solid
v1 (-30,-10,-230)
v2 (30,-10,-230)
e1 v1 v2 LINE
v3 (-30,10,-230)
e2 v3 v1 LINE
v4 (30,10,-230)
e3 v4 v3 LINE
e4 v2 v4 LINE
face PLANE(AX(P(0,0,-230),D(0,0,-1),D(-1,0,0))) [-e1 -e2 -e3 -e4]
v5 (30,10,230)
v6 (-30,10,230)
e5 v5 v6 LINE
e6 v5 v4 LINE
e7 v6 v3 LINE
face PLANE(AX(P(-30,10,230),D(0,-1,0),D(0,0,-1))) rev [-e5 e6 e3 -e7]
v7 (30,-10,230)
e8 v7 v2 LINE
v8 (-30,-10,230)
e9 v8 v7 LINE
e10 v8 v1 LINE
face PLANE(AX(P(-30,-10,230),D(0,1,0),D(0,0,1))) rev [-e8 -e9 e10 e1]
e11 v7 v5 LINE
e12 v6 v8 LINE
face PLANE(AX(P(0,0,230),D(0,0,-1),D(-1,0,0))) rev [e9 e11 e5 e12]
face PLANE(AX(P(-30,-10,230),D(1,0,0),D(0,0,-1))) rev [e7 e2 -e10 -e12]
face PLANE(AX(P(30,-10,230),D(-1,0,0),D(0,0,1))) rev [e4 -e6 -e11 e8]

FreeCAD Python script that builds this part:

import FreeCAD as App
import Part
import Sketcher
from FreeCAD import Vector


def add_polygon(sketch, points):
    """Adds a closed chain of lines whose ends are joined by coincident constraints."""
    first, n = sketch.GeometryCount, len(points)
    for a, b in zip(points, points[1:] + points[:1]):
        sketch.addGeometry(Part.LineSegment(App.Vector(*a, 0), App.Vector(*b, 0)), False)
    for i in range(n):
        sketch.addConstraint(Sketcher.Constraint("Coincident", first + i, 2, first + (i + 1) % n, 1))

doc = App.newDocument("Part")
body = doc.addObject("PartDesign::Body", "Body")

# Sketch on XY plane
sketch1 = body.newObject("Sketcher::SketchObject", "Sketch")
sketch1.AttachmentSupport = (doc.getObject("XY_Plane"), [""])
sketch1.MapMode = "FlatFace"
add_polygon(sketch1, [(-30, 10), (-30, -10), (30, -10), (30, 10)])  # lines 0-3
sketch1.addConstraint([
    Sketcher.Constraint("Vertical", 0),
    Sketcher.Constraint("Horizontal", 1),
    Sketcher.Constraint("Vertical", 2),
    Sketcher.Constraint("Horizontal", 3),
    Sketcher.Constraint("Symmetric", 0, 2, 2, 2, -1, 1),
    Sketcher.Constraint("DistanceX", 1, 1, 1, 2, 60.0),
    Sketcher.Constraint("DistanceY", 0, 2, 0, 1, 20.0),
])
pad1 = body.newObject("PartDesign::Pad", "Pad")
pad1.Profile = sketch1
pad1.Length = 460
pad1.Midplane = True

doc.recompute()
